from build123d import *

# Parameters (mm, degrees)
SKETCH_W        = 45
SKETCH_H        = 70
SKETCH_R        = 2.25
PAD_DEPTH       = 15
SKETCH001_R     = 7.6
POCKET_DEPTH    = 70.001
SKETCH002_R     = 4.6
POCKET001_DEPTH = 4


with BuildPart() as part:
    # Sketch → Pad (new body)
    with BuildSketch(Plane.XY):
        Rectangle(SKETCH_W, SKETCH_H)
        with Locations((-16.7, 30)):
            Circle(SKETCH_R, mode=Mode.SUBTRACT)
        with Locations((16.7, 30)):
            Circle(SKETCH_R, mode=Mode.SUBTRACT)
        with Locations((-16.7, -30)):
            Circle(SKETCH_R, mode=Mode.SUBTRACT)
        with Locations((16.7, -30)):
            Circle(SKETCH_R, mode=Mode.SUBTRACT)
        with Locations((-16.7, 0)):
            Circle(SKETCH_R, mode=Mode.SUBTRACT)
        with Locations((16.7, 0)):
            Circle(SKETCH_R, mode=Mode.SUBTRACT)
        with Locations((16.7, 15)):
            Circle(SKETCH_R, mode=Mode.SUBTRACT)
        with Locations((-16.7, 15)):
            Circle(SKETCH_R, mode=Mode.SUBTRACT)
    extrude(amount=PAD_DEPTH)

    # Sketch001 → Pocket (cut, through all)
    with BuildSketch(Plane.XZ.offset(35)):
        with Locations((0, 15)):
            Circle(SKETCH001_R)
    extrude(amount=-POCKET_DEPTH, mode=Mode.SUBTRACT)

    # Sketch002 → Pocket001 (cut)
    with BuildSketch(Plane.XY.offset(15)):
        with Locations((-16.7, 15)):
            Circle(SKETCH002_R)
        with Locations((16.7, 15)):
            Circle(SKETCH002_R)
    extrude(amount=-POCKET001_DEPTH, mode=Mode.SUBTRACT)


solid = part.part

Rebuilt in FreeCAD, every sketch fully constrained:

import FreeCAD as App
import Part
import Sketcher


def add_polygon(sketch, points):
    """Adds a closed chain of lines whose ends are joined by coincident constraints."""
    first, n = sketch.GeometryCount, len(points)
    for a, b in zip(points, points[1:] + points[:1]):
        sketch.addGeometry(Part.LineSegment(App.Vector(*a, 0), App.Vector(*b, 0)), False)
    for i in range(n):
        sketch.addConstraint(Sketcher.Constraint("Coincident", first + i, 2, first + (i + 1) % n, 1))

doc = App.newDocument("Part")
params = doc.addObject("Spreadsheet::Sheet", "Params")
for row, (alias, value) in enumerate([
    ("sketch1_diameter", "4.5 mm"),
    ("sketch1_width", "45 mm"),
    ("sketch1_height", "70 mm"),
    ("pad1_length", "15 mm"),
    ("sketch2_diameter", "15.2 mm"),
    ("sketch3_diameter", "9.2 mm"),
    ("pocket2_length", "4 mm"),
], start=1):
    params.set(f"A{row}", alias)
    params.set(f"B{row}", "=" + value)
    params.setAlias(f"B{row}", alias)

body = doc.addObject("PartDesign::Body", "Body")

# Sketch on XY plane
sketch1 = body.newObject("Sketcher::SketchObject", "Sketch")
sketch1.AttachmentSupport = (doc.getObject("XY_Plane"), [""])
sketch1.MapMode = "FlatFace"
add_polygon(sketch1, [(-22.5, 35), (-22.5, -35), (22.5, -35), (22.5, 35)])  # lines 0-3
sketch1.addGeometry(Part.Circle(App.Vector(-16.7, -30, 0), App.Vector(0, 0, 1), 2.2), False)  # 4
sketch1.addGeometry(Part.Circle(App.Vector(16.7, -30, 0), App.Vector(0, 0, 1), 2.2), False)  # 5
sketch1.addGeometry(Part.Circle(App.Vector(-16.7, 0, 0), App.Vector(0, 0, 1), 2.2), False)  # 6
sketch1.addGeometry(Part.Circle(App.Vector(-16.7, 15, 0), App.Vector(0, 0, 1), 2.2), False)  # 7
sketch1.addGeometry(Part.Circle(App.Vector(-16.7, 30, 0), App.Vector(0, 0, 1), 2.2), False)  # 8
sketch1.addGeometry(Part.Circle(App.Vector(16.7, 0, 0), App.Vector(0, 0, 1), 2.2), False)  # 9
sketch1.addGeometry(Part.Circle(App.Vector(16.7, 15, 0), App.Vector(0, 0, 1), 2.2), False)  # 10
sketch1.addGeometry(Part.Circle(App.Vector(16.7, 30, 0), App.Vector(0, 0, 1), 2.2), False)  # 11
sketch1.addConstraint([
    Sketcher.Constraint("Vertical", 0),
    Sketcher.Constraint("Horizontal", 1),
    Sketcher.Constraint("Vertical", 2),
    Sketcher.Constraint("Horizontal", 3),
    Sketcher.Constraint("Equal", 4, 5),
    Sketcher.Constraint("Equal", 5, 6),
    Sketcher.Constraint("Equal", 6, 7),
    Sketcher.Constraint("Equal", 7, 8),
    Sketcher.Constraint("Equal", 8, 9),
    Sketcher.Constraint("Equal", 9, 10),
    Sketcher.Constraint("Equal", 10, 11),
    Sketcher.Constraint("Symmetric", 5, 3, 8, 3, -1, 1),
    Sketcher.Constraint("Symmetric", 6, 3, 9, 3, -1, 1),
    Sketcher.Constraint("Symmetric", 4, 3, 11, 3, -1, 1),
    Sketcher.Constraint("Symmetric", 0, 2, 2, 2, -1, 1),
    Sketcher.Constraint("Symmetric", 4, 3, 5, 3, -2),
    Sketcher.Constraint("Symmetric", 7, 3, 10, 3, -2),
    Sketcher.Constraint("PointOnObject", 6, 3, -1),
    Sketcher.Constraint("Vertical", 4, 3, 6, 3),
    Sketcher.Constraint("Vertical", 6, 3, 7, 3),
    Sketcher.Constraint("Diameter", 4, 4.5),
    Sketcher.Constraint("DistanceX", 1, 1, 1, 2, 45.0),
    Sketcher.Constraint("DistanceY", 0, 2, 0, 1, 70.0),
    Sketcher.Constraint("DistanceY", 4, 3, -1, 1, 30.0),
    Sketcher.Constraint("DistanceY", -1, 1, 7, 3, 15.0),
    Sketcher.Constraint("DistanceX", 4, 3, -1, 1, 16.7),
])
sketch1.setExpression("Constraints[24]", "Params.sketch1_diameter")
sketch1.setExpression("Constraints[25]", "Params.sketch1_width")
sketch1.setExpression("Constraints[26]", "Params.sketch1_height")
pad1 = body.newObject("PartDesign::Pad", "Pad")
pad1.Profile = sketch1
pad1.setExpression("Length", "Params.pad1_length")

# Sketch on XZ plane
sketch2 = body.newObject("Sketcher::SketchObject", "Sketch001")
sketch2.AttachmentSupport = (doc.getObject("XZ_Plane"), [""])
sketch2.MapMode = "FlatFace"
sketch2.AttachmentOffset = App.Placement(App.Vector(0, 0, 35), App.Rotation())
sketch2.addGeometry(Part.Circle(App.Vector(0, 15, 0), App.Vector(0, 0, 1), 8), False)
sketch2.addConstraint([
    Sketcher.Constraint("PointOnObject", 0, 3, -2),
    Sketcher.Constraint("Diameter", 0, 15.2),
    Sketcher.Constraint("DistanceY", -1, 1, 0, 3, 15.0),
])
sketch2.setExpression("Constraints[1]", "Params.sketch2_diameter")
pocket1 = body.newObject("PartDesign::Pocket", "Pocket")
pocket1.Profile = sketch2
pocket1.Type = "ThroughAll"

# Sketch on XY plane
sketch3 = body.newObject("Sketcher::SketchObject", "Sketch002")
sketch3.AttachmentSupport = (doc.getObject("XY_Plane"), [""])
sketch3.MapMode = "FlatFace"
sketch3.AttachmentOffset = App.Placement(App.Vector(0, 0, 15), App.Rotation())
sketch3.addGeometry([
    Part.Circle(App.Vector(-16.7, 15, 0), App.Vector(0, 0, 1), 4.6),
    Part.Circle(App.Vector(16.7, 15, 0), App.Vector(0, 0, 1), 4.6),
], False)
sketch3.addConstraint([
    Sketcher.Constraint("Equal", 0, 1),
    Sketcher.Constraint("Symmetric", 0, 3, 1, 3, -2),
    Sketcher.Constraint("Diameter", 0, 9.2),
    Sketcher.Constraint("DistanceY", -1, 1, 0, 3, 15.0),
    Sketcher.Constraint("DistanceX", 0, 3, -1, 1, 16.7),
])
sketch3.setExpression("Constraints[2]", "Params.sketch3_diameter")
pocket2 = body.newObject("PartDesign::Pocket", "Pocket001")
pocket2.Profile = sketch3
pocket2.setExpression("Length", "Params.pocket2_length")

doc.recompute()
